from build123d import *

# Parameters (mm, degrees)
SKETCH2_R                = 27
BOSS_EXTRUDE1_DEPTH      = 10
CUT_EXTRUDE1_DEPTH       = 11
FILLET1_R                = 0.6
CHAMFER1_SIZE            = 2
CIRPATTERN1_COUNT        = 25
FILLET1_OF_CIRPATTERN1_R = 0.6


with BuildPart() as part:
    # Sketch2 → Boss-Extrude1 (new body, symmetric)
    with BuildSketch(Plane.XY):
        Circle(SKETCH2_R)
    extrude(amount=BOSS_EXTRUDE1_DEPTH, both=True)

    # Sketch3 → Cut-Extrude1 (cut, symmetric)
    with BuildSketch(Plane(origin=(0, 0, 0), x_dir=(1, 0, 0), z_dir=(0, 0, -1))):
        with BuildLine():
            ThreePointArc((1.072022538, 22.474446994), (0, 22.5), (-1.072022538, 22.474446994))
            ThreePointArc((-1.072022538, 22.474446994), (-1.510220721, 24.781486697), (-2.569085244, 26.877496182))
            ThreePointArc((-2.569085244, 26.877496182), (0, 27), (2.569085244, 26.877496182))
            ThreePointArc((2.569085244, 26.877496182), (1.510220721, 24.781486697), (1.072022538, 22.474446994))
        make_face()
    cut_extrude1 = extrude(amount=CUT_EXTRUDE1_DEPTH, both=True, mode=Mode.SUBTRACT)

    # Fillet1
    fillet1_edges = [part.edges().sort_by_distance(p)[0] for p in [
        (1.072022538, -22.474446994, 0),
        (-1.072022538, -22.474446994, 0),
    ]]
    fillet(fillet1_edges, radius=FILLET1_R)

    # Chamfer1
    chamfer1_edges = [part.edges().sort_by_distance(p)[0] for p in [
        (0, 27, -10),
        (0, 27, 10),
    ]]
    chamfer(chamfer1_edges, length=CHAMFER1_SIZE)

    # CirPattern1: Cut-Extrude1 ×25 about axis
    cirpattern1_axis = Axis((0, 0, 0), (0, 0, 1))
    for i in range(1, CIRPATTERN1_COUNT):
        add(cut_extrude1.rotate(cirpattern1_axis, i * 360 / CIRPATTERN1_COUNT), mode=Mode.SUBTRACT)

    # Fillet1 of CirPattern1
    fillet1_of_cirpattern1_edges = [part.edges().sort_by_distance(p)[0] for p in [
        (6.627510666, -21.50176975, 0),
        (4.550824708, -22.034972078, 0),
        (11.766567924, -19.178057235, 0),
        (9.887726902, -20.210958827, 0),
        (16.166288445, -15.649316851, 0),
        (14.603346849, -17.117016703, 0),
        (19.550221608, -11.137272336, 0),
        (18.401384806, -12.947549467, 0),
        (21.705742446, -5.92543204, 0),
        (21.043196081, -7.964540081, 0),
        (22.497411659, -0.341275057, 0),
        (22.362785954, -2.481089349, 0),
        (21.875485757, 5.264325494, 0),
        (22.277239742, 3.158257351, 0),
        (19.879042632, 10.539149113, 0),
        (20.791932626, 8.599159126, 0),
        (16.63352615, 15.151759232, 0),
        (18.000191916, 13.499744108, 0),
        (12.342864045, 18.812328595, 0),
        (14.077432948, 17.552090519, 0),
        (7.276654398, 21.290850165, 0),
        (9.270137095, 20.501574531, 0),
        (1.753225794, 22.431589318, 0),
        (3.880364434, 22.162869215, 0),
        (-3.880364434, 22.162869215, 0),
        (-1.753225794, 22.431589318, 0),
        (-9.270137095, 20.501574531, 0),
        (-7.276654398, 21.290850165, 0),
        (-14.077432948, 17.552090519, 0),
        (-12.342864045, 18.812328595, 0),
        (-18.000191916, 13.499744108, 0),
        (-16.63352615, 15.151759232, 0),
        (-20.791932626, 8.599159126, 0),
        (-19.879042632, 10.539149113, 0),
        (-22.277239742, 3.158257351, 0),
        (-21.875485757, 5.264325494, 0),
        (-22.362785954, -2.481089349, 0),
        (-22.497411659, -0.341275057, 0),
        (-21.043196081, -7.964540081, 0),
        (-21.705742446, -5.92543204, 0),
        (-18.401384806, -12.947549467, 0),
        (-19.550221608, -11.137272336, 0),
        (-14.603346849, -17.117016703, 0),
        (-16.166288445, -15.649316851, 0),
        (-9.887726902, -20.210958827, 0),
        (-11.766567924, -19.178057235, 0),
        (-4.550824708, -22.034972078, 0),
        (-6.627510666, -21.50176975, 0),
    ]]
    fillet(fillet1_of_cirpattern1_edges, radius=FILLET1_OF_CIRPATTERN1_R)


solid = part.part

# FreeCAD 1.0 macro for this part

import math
import FreeCAD as App
import Part
import Sketcher


def edges_at(feature, points):
    """Names of the edges that pass closest to the given points."""
    edges = feature.Shape.Edges
    near = lambda p: min(range(len(edges)), key=lambda i: edges[i].distToShape(Part.Vertex(*p))[0])
    return sorted({f"Edge{near(p) + 1}" for p in points})

doc = App.newDocument("Part")
body = doc.addObject("PartDesign::Body", "Body")

sketch1 = doc.addObject("Sketcher::SketchObject", "Sketch")
body.addObject(sketch1)
sketch1.AttachmentSupport = (doc.XY_Plane, [""])
sketch1.MapMode = "FlatFace"
sketch1.addGeometry(Part.Circle(App.Vector(0, 0, 0), App.Vector(0, 0, 1), 27), False)
sketch1.addConstraint([
    Sketcher.Constraint("Coincident", 0, 3, -1, 1),
    Sketcher.Constraint("Diameter", 0, 54.0),
])
pad1 = doc.addObject("PartDesign::Pad", "Pad")
body.addObject(pad1)
pad1.Profile = sketch1
pad1.Length = 20
pad1.Midplane = True

sketch2 = doc.addObject("Sketcher::SketchObject", "Sketch001")
body.addObject(sketch2)
sketch2.AttachmentSupport = (doc.XY_Plane, [""])
sketch2.MapMode = "FlatFace"
sketch2.addGeometry([
    Part.ArcOfCircle(Part.Circle(App.Vector(0, 0, 0), App.Vector(0, 0, 1), 22.5), math.radians(-92.73), math.radians(-87.27)),
    Part.ArcOfCircle(Part.Circle(App.Vector(9.5, -22.1, 0), App.Vector(0, 0, 1), 8.4), math.radians(-177), math.radians(-145)),
    Part.ArcOfCircle(Part.Circle(App.Vector(0, 0, 0), App.Vector(0, 0, 1), 27), math.radians(-95.46), math.radians(-84.54)),
    Part.ArcOfCircle(Part.Circle(App.Vector(-9.5, -22.1, 0), App.Vector(0, 0, 1), 8.4), math.radians(-35), math.radians(-3)),
], False)
sketch2.addConstraint([
    Sketcher.Constraint("Coincident", 0, 2, 1, 1),
    Sketcher.Constraint("Coincident", 1, 2, 2, 2),
    Sketcher.Constraint("Coincident", 2, 1, 3, 1),
    Sketcher.Constraint("Coincident", 3, 2, 0, 1),
    Sketcher.Constraint("Coincident", 0, 3, -1, 1),
    Sketcher.Constraint("Coincident", 2, 3, -1, 1),
    Sketcher.Constraint("Equal", 1, 3),
    Sketcher.Constraint("Symmetric", 1, 3, 3, 3, -2),
    Sketcher.Constraint("Radius", 2, 27.0),
    Sketcher.Constraint("Radius", 0, 22.5),
    Sketcher.Constraint("Radius", 1, 8.4118),
    Sketcher.Constraint("DistanceX", -1, 1, 1, 3, 9.47427),
    Sketcher.Constraint("DistanceY", 1, 2, 0, 2, 4.403049),
])
pocket1 = doc.addObject("PartDesign::Pocket", "Pocket")
body.addObject(pocket1)
pocket1.Profile = sketch2
pocket1.Length = 22
pocket1.Midplane = True
doc.recompute()

fillet = doc.addObject("PartDesign::Fillet", "Fillet")
body.addObject(fillet)
fillet.Base = (pocket1, edges_at(pocket1, [(1.072, -22.474, 0), (-1.072, -22.474, 0)]))
fillet.Radius = 0.6
doc.recompute()

chamfer = doc.addObject("PartDesign::Chamfer", "Chamfer")
body.addObject(chamfer)
chamfer.Base = (fillet, edges_at(fillet, [(0, 27, -10), (0, 27, 10)]))
chamfer.Size = 2
doc.recompute()

polarpattern = doc.addObject("PartDesign::PolarPattern", "PolarPattern")
body.addObject(polarpattern)
polarpattern.Originals = [pocket1]
polarpattern.Axis = (doc.Z_Axis, [""])
polarpattern.Angle = 360
polarpattern.Occurrences = 25
body.Tip = polarpattern
doc.recompute()

fillet2 = doc.addObject("PartDesign::Fillet", "Fillet001")
body.addObject(fillet2)
fillet2.Base = (polarpattern, edges_at(polarpattern, [
    (6.628, -21.502, 0),
    (4.551, -22.035, 0),
    (11.767, -19.178, 0),
    (9.888, -20.211, 0),
    (16.166, -15.649, 0),
    (14.603, -17.117, 0),
    (19.55, -11.137, 0),
    (18.401, -12.948, 0),
    (21.706, -5.925, 0),
    (21.043, -7.965, 0),
    (22.497, -0.341, 0),
    (22.363, -2.481, 0),
    (21.875, 5.264, 0),
    (22.277, 3.158, 0),
    (19.879, 10.539, 0),
    (20.792, 8.599, 0),
    (16.634, 15.152, 0),
    (18, 13.5, 0),
    (12.343, 18.812, 0),
    (14.077, 17.552, 0),
    (7.277, 21.291, 0),
    (9.27, 20.502, 0),
    (1.753, 22.432, 0),
    (3.88, 22.163, 0),
    (-3.88, 22.163, 0),
    (-1.753, 22.432, 0),
    (-9.27, 20.502, 0),
    (-7.277, 21.291, 0),
    (-14.077, 17.552, 0),
    (-12.343, 18.812, 0),
    (-18, 13.5, 0),
    (-16.634, 15.152, 0),
    (-20.792, 8.599, 0),
    (-19.879, 10.539, 0),
    (-22.277, 3.158, 0),
    (-21.875, 5.264, 0),
    (-22.363, -2.481, 0),
    (-22.497, -0.341, 0),
    (-21.043, -7.965, 0),
    (-21.706, -5.925, 0),
    (-18.401, -12.948, 0),
    (-19.55, -11.137, 0),
    (-14.603, -17.117, 0),
    (-16.166, -15.649, 0),
    (-9.888, -20.211, 0),
    (-11.767, -19.178, 0),
    (-4.551, -22.035, 0),
    (-6.628, -21.502, 0),
]))
fillet2.Radius = 0.6

doc.recompute()
